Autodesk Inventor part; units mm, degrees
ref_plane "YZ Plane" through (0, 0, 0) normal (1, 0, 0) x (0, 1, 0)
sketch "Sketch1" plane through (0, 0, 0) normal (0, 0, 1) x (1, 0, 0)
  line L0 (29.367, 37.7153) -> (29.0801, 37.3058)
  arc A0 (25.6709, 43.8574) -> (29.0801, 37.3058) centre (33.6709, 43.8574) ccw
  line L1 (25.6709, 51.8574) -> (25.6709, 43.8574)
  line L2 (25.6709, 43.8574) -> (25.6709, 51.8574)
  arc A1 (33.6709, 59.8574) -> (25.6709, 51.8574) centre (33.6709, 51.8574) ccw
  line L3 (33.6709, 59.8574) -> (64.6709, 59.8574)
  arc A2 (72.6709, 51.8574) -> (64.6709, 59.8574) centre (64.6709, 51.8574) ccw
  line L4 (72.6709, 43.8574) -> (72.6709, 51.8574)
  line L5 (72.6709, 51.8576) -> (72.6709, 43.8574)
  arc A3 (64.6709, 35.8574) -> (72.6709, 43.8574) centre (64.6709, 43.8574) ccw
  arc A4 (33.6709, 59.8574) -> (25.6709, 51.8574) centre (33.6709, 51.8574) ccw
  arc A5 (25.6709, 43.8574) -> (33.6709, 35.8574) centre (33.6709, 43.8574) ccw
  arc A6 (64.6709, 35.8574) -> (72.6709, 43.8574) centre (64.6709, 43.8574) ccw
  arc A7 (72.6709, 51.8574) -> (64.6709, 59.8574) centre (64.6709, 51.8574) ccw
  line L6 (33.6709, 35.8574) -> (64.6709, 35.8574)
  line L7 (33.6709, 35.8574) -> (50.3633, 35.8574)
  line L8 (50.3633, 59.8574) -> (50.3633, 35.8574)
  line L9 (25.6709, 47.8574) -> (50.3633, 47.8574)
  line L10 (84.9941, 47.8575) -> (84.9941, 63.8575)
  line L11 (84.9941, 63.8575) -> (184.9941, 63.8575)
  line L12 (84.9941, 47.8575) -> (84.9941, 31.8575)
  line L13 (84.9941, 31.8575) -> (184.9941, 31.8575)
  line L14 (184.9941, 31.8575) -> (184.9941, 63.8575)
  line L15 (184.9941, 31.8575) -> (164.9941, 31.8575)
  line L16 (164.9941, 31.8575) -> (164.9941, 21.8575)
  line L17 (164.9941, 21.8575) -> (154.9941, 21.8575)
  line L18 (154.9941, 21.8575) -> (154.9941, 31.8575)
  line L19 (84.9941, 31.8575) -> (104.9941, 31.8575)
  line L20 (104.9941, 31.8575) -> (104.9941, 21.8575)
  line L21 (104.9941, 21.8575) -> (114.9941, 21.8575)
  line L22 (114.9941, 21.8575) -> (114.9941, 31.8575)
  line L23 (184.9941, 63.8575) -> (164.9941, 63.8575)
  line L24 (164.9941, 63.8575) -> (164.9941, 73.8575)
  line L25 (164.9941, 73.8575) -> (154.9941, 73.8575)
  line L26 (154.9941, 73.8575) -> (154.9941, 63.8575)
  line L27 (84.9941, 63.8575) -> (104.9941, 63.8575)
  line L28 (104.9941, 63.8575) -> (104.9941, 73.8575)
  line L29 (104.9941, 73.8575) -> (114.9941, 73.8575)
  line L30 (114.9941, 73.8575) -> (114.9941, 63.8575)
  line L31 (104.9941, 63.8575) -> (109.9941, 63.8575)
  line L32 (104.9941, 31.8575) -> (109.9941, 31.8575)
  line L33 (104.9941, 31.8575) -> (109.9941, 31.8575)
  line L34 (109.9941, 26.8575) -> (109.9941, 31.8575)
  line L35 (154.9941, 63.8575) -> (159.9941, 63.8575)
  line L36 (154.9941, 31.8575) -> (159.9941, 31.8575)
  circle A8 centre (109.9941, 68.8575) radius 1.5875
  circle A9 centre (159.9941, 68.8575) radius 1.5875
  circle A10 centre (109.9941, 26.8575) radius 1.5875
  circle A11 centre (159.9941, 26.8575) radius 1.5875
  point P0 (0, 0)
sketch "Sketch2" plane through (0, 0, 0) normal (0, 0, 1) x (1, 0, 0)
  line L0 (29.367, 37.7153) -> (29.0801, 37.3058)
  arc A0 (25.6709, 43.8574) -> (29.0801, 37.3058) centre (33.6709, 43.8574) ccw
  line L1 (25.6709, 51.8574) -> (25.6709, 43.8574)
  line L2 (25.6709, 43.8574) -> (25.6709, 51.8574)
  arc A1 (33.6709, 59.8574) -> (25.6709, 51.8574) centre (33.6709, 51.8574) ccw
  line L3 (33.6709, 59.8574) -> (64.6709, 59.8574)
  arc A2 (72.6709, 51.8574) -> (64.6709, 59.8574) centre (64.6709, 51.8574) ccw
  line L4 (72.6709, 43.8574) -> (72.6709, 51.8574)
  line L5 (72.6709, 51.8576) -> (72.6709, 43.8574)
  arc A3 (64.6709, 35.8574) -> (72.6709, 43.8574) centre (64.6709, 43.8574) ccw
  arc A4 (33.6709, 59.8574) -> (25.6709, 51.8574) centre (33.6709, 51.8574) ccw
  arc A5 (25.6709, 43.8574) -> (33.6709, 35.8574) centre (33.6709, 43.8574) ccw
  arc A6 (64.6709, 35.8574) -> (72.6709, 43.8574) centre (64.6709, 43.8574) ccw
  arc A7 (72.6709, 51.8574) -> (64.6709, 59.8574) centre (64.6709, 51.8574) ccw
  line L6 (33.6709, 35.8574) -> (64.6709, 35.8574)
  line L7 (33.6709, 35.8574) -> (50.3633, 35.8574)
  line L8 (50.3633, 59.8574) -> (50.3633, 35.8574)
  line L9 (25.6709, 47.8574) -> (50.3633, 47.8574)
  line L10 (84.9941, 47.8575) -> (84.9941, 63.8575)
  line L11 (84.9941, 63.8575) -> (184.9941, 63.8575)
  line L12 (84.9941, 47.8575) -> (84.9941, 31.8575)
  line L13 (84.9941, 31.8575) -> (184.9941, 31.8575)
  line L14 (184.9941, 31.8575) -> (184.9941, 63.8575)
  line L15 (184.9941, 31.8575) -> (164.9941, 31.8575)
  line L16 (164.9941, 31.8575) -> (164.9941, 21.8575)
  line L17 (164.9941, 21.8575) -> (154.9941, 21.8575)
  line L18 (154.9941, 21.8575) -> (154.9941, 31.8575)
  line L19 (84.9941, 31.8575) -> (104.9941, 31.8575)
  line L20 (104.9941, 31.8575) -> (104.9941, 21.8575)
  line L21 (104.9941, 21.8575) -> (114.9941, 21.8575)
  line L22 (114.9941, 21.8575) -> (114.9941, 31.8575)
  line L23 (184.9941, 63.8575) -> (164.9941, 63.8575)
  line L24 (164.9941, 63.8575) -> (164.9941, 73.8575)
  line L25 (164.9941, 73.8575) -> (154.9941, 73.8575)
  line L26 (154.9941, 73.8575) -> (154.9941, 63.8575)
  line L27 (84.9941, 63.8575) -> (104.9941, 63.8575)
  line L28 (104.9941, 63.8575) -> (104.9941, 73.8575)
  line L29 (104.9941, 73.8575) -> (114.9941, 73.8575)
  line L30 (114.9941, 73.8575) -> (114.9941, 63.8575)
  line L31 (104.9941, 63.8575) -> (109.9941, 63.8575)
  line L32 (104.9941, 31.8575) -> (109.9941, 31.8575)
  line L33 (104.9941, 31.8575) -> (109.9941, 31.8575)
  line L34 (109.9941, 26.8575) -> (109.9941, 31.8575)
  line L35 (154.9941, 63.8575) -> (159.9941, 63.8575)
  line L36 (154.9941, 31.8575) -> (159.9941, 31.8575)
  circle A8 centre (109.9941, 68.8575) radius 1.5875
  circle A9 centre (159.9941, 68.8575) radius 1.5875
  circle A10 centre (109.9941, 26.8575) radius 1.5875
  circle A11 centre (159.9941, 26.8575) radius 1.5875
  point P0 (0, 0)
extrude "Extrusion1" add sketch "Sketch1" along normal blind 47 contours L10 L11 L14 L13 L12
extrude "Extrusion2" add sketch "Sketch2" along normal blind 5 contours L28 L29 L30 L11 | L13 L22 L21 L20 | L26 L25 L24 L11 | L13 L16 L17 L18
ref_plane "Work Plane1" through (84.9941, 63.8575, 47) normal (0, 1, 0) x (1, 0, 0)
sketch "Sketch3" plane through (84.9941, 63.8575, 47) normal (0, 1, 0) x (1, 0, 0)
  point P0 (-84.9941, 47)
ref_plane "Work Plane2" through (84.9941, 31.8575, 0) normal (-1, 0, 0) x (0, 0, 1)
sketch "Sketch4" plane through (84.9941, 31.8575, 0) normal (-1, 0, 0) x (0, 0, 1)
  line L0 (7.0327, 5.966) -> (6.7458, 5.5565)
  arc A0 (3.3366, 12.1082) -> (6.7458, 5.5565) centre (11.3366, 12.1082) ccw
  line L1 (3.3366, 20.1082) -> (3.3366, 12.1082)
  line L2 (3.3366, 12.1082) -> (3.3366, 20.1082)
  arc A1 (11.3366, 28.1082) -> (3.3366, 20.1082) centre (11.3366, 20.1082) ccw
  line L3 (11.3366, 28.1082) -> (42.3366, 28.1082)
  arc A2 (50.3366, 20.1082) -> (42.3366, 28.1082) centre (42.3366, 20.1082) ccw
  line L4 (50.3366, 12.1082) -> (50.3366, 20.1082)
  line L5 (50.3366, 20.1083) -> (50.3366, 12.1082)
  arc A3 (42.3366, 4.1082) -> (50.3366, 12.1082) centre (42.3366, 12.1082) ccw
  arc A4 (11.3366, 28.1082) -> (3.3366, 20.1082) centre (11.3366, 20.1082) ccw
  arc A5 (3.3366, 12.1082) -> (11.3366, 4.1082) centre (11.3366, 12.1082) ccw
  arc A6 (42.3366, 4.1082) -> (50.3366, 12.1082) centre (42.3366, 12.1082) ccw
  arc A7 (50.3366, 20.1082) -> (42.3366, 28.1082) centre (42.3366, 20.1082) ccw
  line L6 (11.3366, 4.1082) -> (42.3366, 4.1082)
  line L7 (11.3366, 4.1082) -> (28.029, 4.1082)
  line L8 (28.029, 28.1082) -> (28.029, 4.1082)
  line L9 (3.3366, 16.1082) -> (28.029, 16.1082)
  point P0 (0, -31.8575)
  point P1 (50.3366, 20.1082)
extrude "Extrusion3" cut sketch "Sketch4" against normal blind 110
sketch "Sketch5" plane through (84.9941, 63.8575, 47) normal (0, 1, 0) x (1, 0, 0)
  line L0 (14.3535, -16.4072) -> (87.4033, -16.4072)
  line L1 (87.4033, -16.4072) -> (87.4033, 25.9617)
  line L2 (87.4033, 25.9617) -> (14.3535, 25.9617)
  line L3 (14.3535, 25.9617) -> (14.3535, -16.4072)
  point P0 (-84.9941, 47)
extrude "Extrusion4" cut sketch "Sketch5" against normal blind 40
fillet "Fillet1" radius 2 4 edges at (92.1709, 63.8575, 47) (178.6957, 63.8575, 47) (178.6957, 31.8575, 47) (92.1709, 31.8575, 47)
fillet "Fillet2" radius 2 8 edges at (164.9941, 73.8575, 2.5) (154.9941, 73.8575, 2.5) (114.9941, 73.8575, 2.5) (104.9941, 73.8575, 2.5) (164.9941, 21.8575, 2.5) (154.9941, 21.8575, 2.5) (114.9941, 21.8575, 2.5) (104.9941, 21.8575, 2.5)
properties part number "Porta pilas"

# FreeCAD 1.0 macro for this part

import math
import FreeCAD as App
import Part
import Sketcher
from FreeCAD import Vector
Q = App.Units.Quantity


def edges_at(feature, points):
    """Names of the edges that pass closest to the given points."""
    edges = feature.Shape.Edges
    near = lambda p: min(range(len(edges)), key=lambda i: edges[i].distToShape(Part.Vertex(*p))[0])
    return sorted({f"Edge{near(p) + 1}" for p in points})

doc = App.newDocument("Part")
body = doc.addObject("PartDesign::Body", "Body")

# Sketch on XY plane
sketch1 = body.newObject("Sketcher::SketchObject", "Sketch")
sketch1.AttachmentSupport = (doc.getObject("XY_Plane"), [""])
sketch1.MapMode = "FlatFace"
sketch1.addGeometry(Part.LineSegment(Vector(85, 64, 0), Vector(85, 32, 0)), False)
sketch1.addGeometry(Part.LineSegment(Vector(85, 32, 0), Vector(185, 32, 0)), False)
sketch1.addGeometry(Part.LineSegment(Vector(185, 32, 0), Vector(185, 64, 0)), False)
sketch1.addGeometry(Part.LineSegment(Vector(185, 64, 0), Vector(85, 64, 0)), False)
sketch1.addConstraint(Sketcher.Constraint("Coincident", 0, 2, 1, 1))
sketch1.addConstraint(Sketcher.Constraint("Coincident", 1, 2, 2, 1))
sketch1.addConstraint(Sketcher.Constraint("Coincident", 2, 2, 3, 1))
sketch1.addConstraint(Sketcher.Constraint("Coincident", 3, 2, 0, 1))
sketch1.addConstraint(Sketcher.Constraint("Vertical", 0))
sketch1.addConstraint(Sketcher.Constraint("Horizontal", 1))
sketch1.addConstraint(Sketcher.Constraint("Vertical", 2))
sketch1.addConstraint(Sketcher.Constraint("Horizontal", 3))
sketch1.addConstraint(Sketcher.Constraint("DistanceX", 1, 1, 1, 2, Q("100 mm")))
sketch1.addConstraint(Sketcher.Constraint("DistanceY", 0, 2, 0, 1, Q("32 mm")))
sketch1.addConstraint(Sketcher.Constraint("DistanceX", -1, 1, 0, 2, Q("84.994 mm")))
sketch1.addConstraint(Sketcher.Constraint("DistanceY", -1, 1, 0, 2, Q("31.8575 mm")))
pad1 = body.newObject("PartDesign::Pad", "Pad")
pad1.Profile = sketch1
pad1.Length = 47

# Sketch on XY plane
sketch2 = body.newObject("Sketcher::SketchObject", "Sketch001")
sketch2.AttachmentSupport = (doc.getObject("XY_Plane"), [""])
sketch2.MapMode = "FlatFace"
sketch2.addGeometry(Part.LineSegment(Vector(105, 73.9, 0), Vector(105, 63.9, 0)), False)
sketch2.addGeometry(Part.LineSegment(Vector(105, 63.9, 0), Vector(115, 63.9, 0)), False)
sketch2.addGeometry(Part.LineSegment(Vector(115, 63.9, 0), Vector(115, 73.9, 0)), False)
sketch2.addGeometry(Part.LineSegment(Vector(115, 73.9, 0), Vector(105, 73.9, 0)), False)
sketch2.addGeometry(Part.Circle(Vector(110, 68.9, 0), Vector(0, 0, 1), 1.6), False)
sketch2.addGeometry(Part.LineSegment(Vector(110, 31.9, 0), Vector(105, 31.9, 0)), False)
sketch2.addGeometry(Part.LineSegment(Vector(105, 31.9, 0), Vector(105, 21.9, 0)), False)
sketch2.addGeometry(Part.LineSegment(Vector(105, 21.9, 0), Vector(115, 21.9, 0)), False)
sketch2.addGeometry(Part.LineSegment(Vector(115, 21.9, 0), Vector(115, 31.9, 0)), False)
sketch2.addGeometry(Part.LineSegment(Vector(115, 31.9, 0), Vector(110, 31.9, 0)), False)
sketch2.addGeometry(Part.Circle(Vector(110, 26.9, 0), Vector(0, 0, 1), 1.6), False)
sketch2.addGeometry(Part.LineSegment(Vector(155, 73.9, 0), Vector(155, 63.9, 0)), False)
sketch2.addGeometry(Part.LineSegment(Vector(155, 63.9, 0), Vector(165, 63.9, 0)), False)
sketch2.addGeometry(Part.LineSegment(Vector(165, 63.9, 0), Vector(165, 73.9, 0)), False)
sketch2.addGeometry(Part.LineSegment(Vector(165, 73.9, 0), Vector(155, 73.9, 0)), False)
sketch2.addGeometry(Part.Circle(Vector(160, 68.9, 0), Vector(0, 0, 1), 1.6), False)
sketch2.addGeometry(Part.LineSegment(Vector(165, 31.9, 0), Vector(155, 31.9, 0)), False)
sketch2.addGeometry(Part.LineSegment(Vector(155, 31.9, 0), Vector(155, 21.9, 0)), False)
sketch2.addGeometry(Part.LineSegment(Vector(155, 21.9, 0), Vector(165, 21.9, 0)), False)
sketch2.addGeometry(Part.LineSegment(Vector(165, 21.9, 0), Vector(165, 31.9, 0)), False)
sketch2.addGeometry(Part.Circle(Vector(160, 26.9, 0), Vector(0, 0, 1), 1.6), False)
sketch2.addConstraint(Sketcher.Constraint("Coincident", 0, 2, 1, 1))
sketch2.addConstraint(Sketcher.Constraint("Coincident", 1, 2, 2, 1))
sketch2.addConstraint(Sketcher.Constraint("Coincident", 2, 2, 3, 1))
sketch2.addConstraint(Sketcher.Constraint("Coincident", 3, 2, 0, 1))
sketch2.addConstraint(Sketcher.Constraint("Coincident", 5, 2, 6, 1))
sketch2.addConstraint(Sketcher.Constraint("Coincident", 6, 2, 7, 1))
sketch2.addConstraint(Sketcher.Constraint("Coincident", 7, 2, 8, 1))
sketch2.addConstraint(Sketcher.Constraint("Coincident", 8, 2, 9, 1))
sketch2.addConstraint(Sketcher.Constraint("Coincident", 9, 2, 5, 1))
sketch2.addConstraint(Sketcher.Constraint("Coincident", 11, 2, 12, 1))
sketch2.addConstraint(Sketcher.Constraint("Coincident", 12, 2, 13, 1))
sketch2.addConstraint(Sketcher.Constraint("Coincident", 13, 2, 14, 1))
sketch2.addConstraint(Sketcher.Constraint("Coincident", 14, 2, 11, 1))
sketch2.addConstraint(Sketcher.Constraint("Coincident", 16, 2, 17, 1))
sketch2.addConstraint(Sketcher.Constraint("Coincident", 17, 2, 18, 1))
sketch2.addConstraint(Sketcher.Constraint("Coincident", 18, 2, 19, 1))
sketch2.addConstraint(Sketcher.Constraint("Coincident", 19, 2, 16, 1))
sketch2.addConstraint(Sketcher.Constraint("Vertical", 0))
sketch2.addConstraint(Sketcher.Constraint("Horizontal", 1))
sketch2.addConstraint(Sketcher.Constraint("Vertical", 2))
sketch2.addConstraint(Sketcher.Constraint("Horizontal", 3))
sketch2.addConstraint(Sketcher.Constraint("Horizontal", 5))
sketch2.addConstraint(Sketcher.Constraint("Vertical", 6))
sketch2.addConstraint(Sketcher.Constraint("Horizontal", 7))
sketch2.addConstraint(Sketcher.Constraint("Vertical", 8))
sketch2.addConstraint(Sketcher.Constraint("Horizontal", 9))
sketch2.addConstraint(Sketcher.Constraint("Vertical", 11))
sketch2.addConstraint(Sketcher.Constraint("Horizontal", 12))
sketch2.addConstraint(Sketcher.Constraint("Vertical", 13))
sketch2.addConstraint(Sketcher.Constraint("Horizontal", 14))
sketch2.addConstraint(Sketcher.Constraint("Horizontal", 16))
sketch2.addConstraint(Sketcher.Constraint("Vertical", 17))
sketch2.addConstraint(Sketcher.Constraint("Horizontal", 18))
sketch2.addConstraint(Sketcher.Constraint("Vertical", 19))
sketch2.addConstraint(Sketcher.Constraint("Equal", 4, 10))
sketch2.addConstraint(Sketcher.Constraint("Equal", 10, 15))
sketch2.addConstraint(Sketcher.Constraint("Equal", 15, 20))
sketch2.addConstraint(Sketcher.Constraint("Horizontal", 4, 3, 15, 3))
sketch2.addConstraint(Sketcher.Constraint("Horizontal", 10, 3, 20, 3))
sketch2.addConstraint(Sketcher.Constraint("Horizontal", 1, 2, 11, 2))
sketch2.addConstraint(Sketcher.Constraint("Horizontal", 3, 2, 13, 2))
sketch2.addConstraint(Sketcher.Constraint("Horizontal", 9, 2, 16, 2))
sketch2.addConstraint(Sketcher.Constraint("Horizontal", 7, 2, 17, 2))
sketch2.addConstraint(Sketcher.Constraint("Vertical", 4, 3, 10, 3))
sketch2.addConstraint(Sketcher.Constraint("Vertical", 15, 3, 20, 3))
sketch2.addConstraint(Sketcher.Constraint("Vertical", 3, 2, 5, 2))
sketch2.addConstraint(Sketcher.Constraint("Vertical", 2, 2, 7, 2))
sketch2.addConstraint(Sketcher.Constraint("Vertical", 10, 3, 9, 2))
sketch2.addConstraint(Sketcher.Constraint("Vertical", 14, 2, 16, 2))
sketch2.addConstraint(Sketcher.Constraint("Vertical", 13, 2, 18, 2))
sketch2.addConstraint(Sketcher.Constraint("Equal", 5, 9))
sketch2.addConstraint(Sketcher.Constraint("Equal", 7, 12))
sketch2.addConstraint(Sketcher.Constraint("Equal", 18, 0))
sketch2.addConstraint(Sketcher.Constraint("Equal", 2, 6))
sketch2.addConstraint(Sketcher.Constraint("DistanceX", 1, 1, 1, 2, Q("10 mm")))
sketch2.addConstraint(Sketcher.Constraint("Diameter", 4, Q("3.175 mm")))
sketch2.addConstraint(Sketcher.Constraint("DistanceY", 10, 3, 4, 3, Q("42 mm")))
sketch2.addConstraint(Sketcher.Constraint("DistanceX", 4, 3, 15, 3, Q("50 mm")))
sketch2.addConstraint(Sketcher.Constraint("DistanceY", 0, 2, 4, 3, Q("5 mm")))
sketch2.addConstraint(Sketcher.Constraint("DistanceY", 10, 3, 5, 2, Q("5 mm")))
sketch2.addConstraint(Sketcher.Constraint("DistanceX", 11, 2, 15, 3, Q("5 mm")))
sketch2.addConstraint(Sketcher.Constraint("DistanceX", -1, 1, 4, 3, Q("109.994 mm")))
sketch2.addConstraint(Sketcher.Constraint("DistanceY", -1, 1, 4, 3, Q("68.8575 mm")))
pad2 = body.newObject("PartDesign::Pad", "Pad001")
pad2.Profile = sketch2
pad2.Length = 5

# Sketch on YZ plane
sketch3 = body.newObject("Sketcher::SketchObject", "Sketch002")
sketch3.AttachmentSupport = (doc.getObject("YZ_Plane"), [""])
sketch3.MapMode = "FlatFace"
sketch3.AttachmentOffset = App.Placement(Vector(0, 0, 84.9941), App.Rotation())
sketch3.addGeometry(Part.ArcOfCircle(Part.Circle(Vector(44, 11.3, 0), Vector(0, 0, 1), 8), math.radians(-145), math.radians(-90)), False)
sketch3.addGeometry(Part.ArcOfCircle(Part.Circle(Vector(44, 11.3, 0), Vector(0, 0, 1), 8), math.radians(180), math.radians(215)), False)
sketch3.addGeometry(Part.LineSegment(Vector(36, 11.3, 0), Vector(36, 42.3, 0)), False)
sketch3.addGeometry(Part.ArcOfCircle(Part.Circle(Vector(44, 42.3, 0), Vector(0, 0, 1), 8), math.radians(90), math.radians(180)), False)
sketch3.addGeometry(Part.LineSegment(Vector(44, 50.3, 0), Vector(52, 50.3, 0)), False)
sketch3.addGeometry(Part.ArcOfCircle(Part.Circle(Vector(52, 42.3, 0), Vector(0, 0, 1), 8), math.radians(0), math.radians(90)), False)
sketch3.addGeometry(Part.LineSegment(Vector(60, 42.3, 0), Vector(60, 11.3, 0)), False)
sketch3.addGeometry(Part.ArcOfCircle(Part.Circle(Vector(52, 11.3, 0), Vector(0, 0, 1), 8), math.radians(-90), math.radians(0)), False)
sketch3.addGeometry(Part.LineSegment(Vector(52, 3.3, 0), Vector(44, 3.3, 0)), False)
sketch3.addConstraint(Sketcher.Constraint("Tangent", 0, 1, 1, 2))
sketch3.addConstraint(Sketcher.Constraint("Tangent", 1, 1, 2, 1))
sketch3.addConstraint(Sketcher.Constraint("Tangent", 2, 2, 3, 2))
sketch3.addConstraint(Sketcher.Constraint("Tangent", 3, 1, 4, 1))
sketch3.addConstraint(Sketcher.Constraint("Tangent", 4, 2, 5, 2))
sketch3.addConstraint(Sketcher.Constraint("Tangent", 5, 1, 6, 1))
sketch3.addConstraint(Sketcher.Constraint("Tangent", 6, 2, 7, 2))
sketch3.addConstraint(Sketcher.Constraint("Tangent", 7, 1, 8, 1))
sketch3.addConstraint(Sketcher.Constraint("Tangent", 8, 2, 0, 2))
sketch3.addConstraint(Sketcher.Constraint("Vertical", 2))
sketch3.addConstraint(Sketcher.Constraint("Horizontal", 4))
sketch3.addConstraint(Sketcher.Constraint("Vertical", 6))
sketch3.addConstraint(Sketcher.Constraint("Horizontal", 8))
sketch3.addConstraint(Sketcher.Constraint("Equal", 0, 1))
sketch3.addConstraint(Sketcher.Constraint("Equal", 1, 3))
sketch3.addConstraint(Sketcher.Constraint("Equal", 3, 5))
sketch3.addConstraint(Sketcher.Constraint("Equal", 5, 7))
sketch3.addConstraint(Sketcher.Constraint("Radius", 0, Q("8 mm")))
sketch3.addConstraint(Sketcher.Constraint("DistanceX", 4, 1, 4, 2, Q("8 mm")))
sketch3.addConstraint(Sketcher.Constraint("DistanceY", 2, 1, 2, 2, Q("31 mm")))
sketch3.addConstraint(Sketcher.Constraint("DistanceX", -1, 1, 0, 1, Q("37.414 mm")))
sketch3.addConstraint(Sketcher.Constraint("DistanceX", -1, 1, 0, 3, Q("43.9657 mm")))
sketch3.addConstraint(Sketcher.Constraint("DistanceY", -1, 1, 0, 3, Q("11.3366 mm")))
pocket1 = body.newObject("PartDesign::Pocket", "Pocket")
pocket1.Profile = sketch3
pocket1.Length = 110
pocket1.Reversed = True

# Sketch on XZ plane
sketch4 = body.newObject("Sketcher::SketchObject", "Sketch003")
sketch4.AttachmentSupport = (doc.getObject("XZ_Plane"), [""])
sketch4.MapMode = "FlatFace"
sketch4.AttachmentOffset = App.Placement(Vector(0, 0, -63.8575), App.Rotation())
sketch4.addGeometry(Part.LineSegment(Vector(99, 21, 0), Vector(99, 63, 0)), False)
sketch4.addGeometry(Part.LineSegment(Vector(99, 63, 0), Vector(172, 63, 0)), False)
sketch4.addGeometry(Part.LineSegment(Vector(172, 63, 0), Vector(172, 21, 0)), False)
sketch4.addGeometry(Part.LineSegment(Vector(172, 21, 0), Vector(99, 21, 0)), False)
sketch4.addConstraint(Sketcher.Constraint("Coincident", 0, 2, 1, 1))
sketch4.addConstraint(Sketcher.Constraint("Coincident", 1, 2, 2, 1))
sketch4.addConstraint(Sketcher.Constraint("Coincident", 2, 2, 3, 1))
sketch4.addConstraint(Sketcher.Constraint("Coincident", 3, 2, 0, 1))
sketch4.addConstraint(Sketcher.Constraint("Vertical", 0))
sketch4.addConstraint(Sketcher.Constraint("Horizontal", 1))
sketch4.addConstraint(Sketcher.Constraint("Vertical", 2))
sketch4.addConstraint(Sketcher.Constraint("Horizontal", 3))
sketch4.addConstraint(Sketcher.Constraint("DistanceY", 0, 1, 0, 2, Q("42.369 mm")))
sketch4.addConstraint(Sketcher.Constraint("DistanceX", 1, 1, 1, 2, Q("73.0498 mm")))
sketch4.addConstraint(Sketcher.Constraint("DistanceX", -1, 1, 0, 2, Q("99.3476 mm")))
sketch4.addConstraint(Sketcher.Constraint("DistanceY", -1, 1, 0, 2, Q("63.4072 mm")))
pocket2 = body.newObject("PartDesign::Pocket", "Pocket001")
pocket2.Profile = sketch4
pocket2.Length = 40
pocket2.Reversed = True
doc.recompute()

fillet = body.newObject("PartDesign::Fillet", "Fillet")
fillet.Base = (pocket2, edges_at(pocket2, [
    (92.171, 63.858, 47),
    (178.696, 63.858, 47),
    (178.696, 31.858, 47),
    (92.171, 31.858, 47),
]))
fillet.Radius = 2
doc.recompute()

fillet2 = body.newObject("PartDesign::Fillet", "Fillet001")
fillet2.Base = (fillet, edges_at(fillet, [
    (164.994, 73.858, 2.5),
    (154.994, 73.858, 2.5),
    (114.994, 73.858, 2.5),
    (104.994, 73.858, 2.5),
    (164.994, 21.858, 2.5),
    (154.994, 21.858, 2.5),
    (114.994, 21.858, 2.5),
    (104.994, 21.858, 2.5),
]))
fillet2.Radius = 2

doc.recompute()
